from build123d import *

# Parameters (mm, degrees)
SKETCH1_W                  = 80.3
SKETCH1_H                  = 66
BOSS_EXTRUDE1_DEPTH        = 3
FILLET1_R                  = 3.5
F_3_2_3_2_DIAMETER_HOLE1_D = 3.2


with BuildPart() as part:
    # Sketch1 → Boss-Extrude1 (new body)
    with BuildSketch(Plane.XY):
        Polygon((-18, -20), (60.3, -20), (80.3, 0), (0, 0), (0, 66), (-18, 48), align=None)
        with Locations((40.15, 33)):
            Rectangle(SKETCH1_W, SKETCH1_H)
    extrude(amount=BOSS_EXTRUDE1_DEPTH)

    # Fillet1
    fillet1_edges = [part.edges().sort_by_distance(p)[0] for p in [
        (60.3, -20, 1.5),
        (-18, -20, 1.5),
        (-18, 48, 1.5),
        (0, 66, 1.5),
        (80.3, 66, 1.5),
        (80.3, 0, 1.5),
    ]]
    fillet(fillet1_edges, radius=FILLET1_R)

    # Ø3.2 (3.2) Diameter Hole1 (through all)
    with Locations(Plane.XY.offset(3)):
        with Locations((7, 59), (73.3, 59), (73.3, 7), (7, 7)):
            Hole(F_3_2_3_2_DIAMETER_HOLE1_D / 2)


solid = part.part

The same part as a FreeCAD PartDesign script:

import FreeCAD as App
import Part
import Sketcher
Q = App.Units.Quantity


def edges_at(feature, points):
    """Names of the edges that pass closest to the given points."""
    edges = feature.Shape.Edges
    near = lambda p: min(range(len(edges)), key=lambda i: edges[i].distToShape(Part.Vertex(*p))[0])
    return sorted({f"Edge{near(p) + 1}" for p in points})


def add_polygon(sketch, points):
    """Adds a closed chain of lines whose ends are joined by coincident constraints."""
    first, n = sketch.GeometryCount, len(points)
    for a, b in zip(points, points[1:] + points[:1]):
        sketch.addGeometry(Part.LineSegment(App.Vector(*a, 0), App.Vector(*b, 0)), False)
    for i in range(n):
        sketch.addConstraint(Sketcher.Constraint("Coincident", first + i, 2, first + (i + 1) % n, 1))

doc = App.newDocument("Part")
body = doc.addObject("PartDesign::Body", "Body")

sketch1 = body.newObject("Sketcher::SketchObject", "Sketch")
sketch1.AttachmentSupport = (doc.getObject("XY_Plane"), [""])
sketch1.MapMode = "FlatFace"
add_polygon(sketch1, [(-18, -20), (60, -20), (80, 0), (80, 66), (0, 66), (-18, 48)])
sketch1.addConstraint([
    Sketcher.Constraint("Horizontal", 0),
    Sketcher.Constraint("Vertical", 2),
    Sketcher.Constraint("Horizontal", 3),
    Sketcher.Constraint("Vertical", 5),
    Sketcher.Constraint("PointOnObject", 1, 2, -1),
    Sketcher.Constraint("PointOnObject", 3, 2, -2),
    Sketcher.Constraint("Parallel", 1, 4),
    Sketcher.Constraint("DistanceY", 2, 1, 2, 2, Q("66 mm")),
    Sketcher.Constraint("DistanceY", 5, 2, 5, 1, Q("68 mm")),
    Sketcher.Constraint("Angle", 1, Q("45 deg")),
    Sketcher.Constraint("DistanceX", 0, 1, 0, 2, Q("78.3 mm")),
    Sketcher.Constraint("DistanceY", 0, 2, -1, 1, Q("20 mm")),
])
pad1 = body.newObject("PartDesign::Pad", "Pad")
pad1.Profile = sketch1
pad1.Length = 3
doc.recompute()

fillet = body.newObject("PartDesign::Fillet", "Fillet")
fillet.Base = (pad1, edges_at(pad1, [
    (60.3, -20, 1.5),
    (-18, -20, 1.5),
    (-18, 48, 1.5),
    (0, 66, 1.5),
    (80.3, 66, 1.5),
    (80.3, 0, 1.5),
]))
fillet.Radius = 3.5

sketch2 = body.newObject("Sketcher::SketchObject", "Sketch001")
sketch2.AttachmentSupport = (doc.getObject("XY_Plane"), [""])
sketch2.MapMode = "FlatFace"
sketch2.AttachmentOffset = App.Placement(App.Vector(0, 0, 3), App.Rotation())
sketch2.addGeometry([
    Part.Circle(App.Vector(7, 59, 0), App.Vector(0, 0, 1), 1.6),
    Part.Circle(App.Vector(73.3, 59, 0), App.Vector(0, 0, 1), 1.6),
    Part.Circle(App.Vector(73.3, 7, 0), App.Vector(0, 0, 1), 1.6),
    Part.Circle(App.Vector(7, 7, 0), App.Vector(0, 0, 1), 1.6),
], False)
sketch2.addConstraint([
    Sketcher.Constraint("Equal", 0, 1),
    Sketcher.Constraint("Equal", 1, 2),
    Sketcher.Constraint("Equal", 2, 3),
    Sketcher.Constraint("Horizontal", 0, 3, 1, 3),
    Sketcher.Constraint("Horizontal", 2, 3, 3, 3),
    Sketcher.Constraint("Vertical", 1, 3, 2, 3),
    Sketcher.Constraint("Vertical", 0, 3, 3, 3),
    Sketcher.Constraint("Diameter", 0, Q("3.2 mm")),
    Sketcher.Constraint("DistanceX", -1, 1, 0, 3, Q("7 mm")),
    Sketcher.Constraint("DistanceY", -1, 1, 0, 3, Q("59 mm")),
    Sketcher.Constraint("DistanceY", -1, 1, 2, 3, Q("7 mm")),
    Sketcher.Constraint("DistanceX", -1, 1, 1, 3, Q("73.3 mm")),
])
doc.recompute()
hole = body.newObject("PartDesign::Hole", "Hole")
hole.Profile = sketch2
hole.ThreadType = "None"
hole.Diameter = 3.2
hole.DepthType = "ThroughAll"

doc.recompute()
